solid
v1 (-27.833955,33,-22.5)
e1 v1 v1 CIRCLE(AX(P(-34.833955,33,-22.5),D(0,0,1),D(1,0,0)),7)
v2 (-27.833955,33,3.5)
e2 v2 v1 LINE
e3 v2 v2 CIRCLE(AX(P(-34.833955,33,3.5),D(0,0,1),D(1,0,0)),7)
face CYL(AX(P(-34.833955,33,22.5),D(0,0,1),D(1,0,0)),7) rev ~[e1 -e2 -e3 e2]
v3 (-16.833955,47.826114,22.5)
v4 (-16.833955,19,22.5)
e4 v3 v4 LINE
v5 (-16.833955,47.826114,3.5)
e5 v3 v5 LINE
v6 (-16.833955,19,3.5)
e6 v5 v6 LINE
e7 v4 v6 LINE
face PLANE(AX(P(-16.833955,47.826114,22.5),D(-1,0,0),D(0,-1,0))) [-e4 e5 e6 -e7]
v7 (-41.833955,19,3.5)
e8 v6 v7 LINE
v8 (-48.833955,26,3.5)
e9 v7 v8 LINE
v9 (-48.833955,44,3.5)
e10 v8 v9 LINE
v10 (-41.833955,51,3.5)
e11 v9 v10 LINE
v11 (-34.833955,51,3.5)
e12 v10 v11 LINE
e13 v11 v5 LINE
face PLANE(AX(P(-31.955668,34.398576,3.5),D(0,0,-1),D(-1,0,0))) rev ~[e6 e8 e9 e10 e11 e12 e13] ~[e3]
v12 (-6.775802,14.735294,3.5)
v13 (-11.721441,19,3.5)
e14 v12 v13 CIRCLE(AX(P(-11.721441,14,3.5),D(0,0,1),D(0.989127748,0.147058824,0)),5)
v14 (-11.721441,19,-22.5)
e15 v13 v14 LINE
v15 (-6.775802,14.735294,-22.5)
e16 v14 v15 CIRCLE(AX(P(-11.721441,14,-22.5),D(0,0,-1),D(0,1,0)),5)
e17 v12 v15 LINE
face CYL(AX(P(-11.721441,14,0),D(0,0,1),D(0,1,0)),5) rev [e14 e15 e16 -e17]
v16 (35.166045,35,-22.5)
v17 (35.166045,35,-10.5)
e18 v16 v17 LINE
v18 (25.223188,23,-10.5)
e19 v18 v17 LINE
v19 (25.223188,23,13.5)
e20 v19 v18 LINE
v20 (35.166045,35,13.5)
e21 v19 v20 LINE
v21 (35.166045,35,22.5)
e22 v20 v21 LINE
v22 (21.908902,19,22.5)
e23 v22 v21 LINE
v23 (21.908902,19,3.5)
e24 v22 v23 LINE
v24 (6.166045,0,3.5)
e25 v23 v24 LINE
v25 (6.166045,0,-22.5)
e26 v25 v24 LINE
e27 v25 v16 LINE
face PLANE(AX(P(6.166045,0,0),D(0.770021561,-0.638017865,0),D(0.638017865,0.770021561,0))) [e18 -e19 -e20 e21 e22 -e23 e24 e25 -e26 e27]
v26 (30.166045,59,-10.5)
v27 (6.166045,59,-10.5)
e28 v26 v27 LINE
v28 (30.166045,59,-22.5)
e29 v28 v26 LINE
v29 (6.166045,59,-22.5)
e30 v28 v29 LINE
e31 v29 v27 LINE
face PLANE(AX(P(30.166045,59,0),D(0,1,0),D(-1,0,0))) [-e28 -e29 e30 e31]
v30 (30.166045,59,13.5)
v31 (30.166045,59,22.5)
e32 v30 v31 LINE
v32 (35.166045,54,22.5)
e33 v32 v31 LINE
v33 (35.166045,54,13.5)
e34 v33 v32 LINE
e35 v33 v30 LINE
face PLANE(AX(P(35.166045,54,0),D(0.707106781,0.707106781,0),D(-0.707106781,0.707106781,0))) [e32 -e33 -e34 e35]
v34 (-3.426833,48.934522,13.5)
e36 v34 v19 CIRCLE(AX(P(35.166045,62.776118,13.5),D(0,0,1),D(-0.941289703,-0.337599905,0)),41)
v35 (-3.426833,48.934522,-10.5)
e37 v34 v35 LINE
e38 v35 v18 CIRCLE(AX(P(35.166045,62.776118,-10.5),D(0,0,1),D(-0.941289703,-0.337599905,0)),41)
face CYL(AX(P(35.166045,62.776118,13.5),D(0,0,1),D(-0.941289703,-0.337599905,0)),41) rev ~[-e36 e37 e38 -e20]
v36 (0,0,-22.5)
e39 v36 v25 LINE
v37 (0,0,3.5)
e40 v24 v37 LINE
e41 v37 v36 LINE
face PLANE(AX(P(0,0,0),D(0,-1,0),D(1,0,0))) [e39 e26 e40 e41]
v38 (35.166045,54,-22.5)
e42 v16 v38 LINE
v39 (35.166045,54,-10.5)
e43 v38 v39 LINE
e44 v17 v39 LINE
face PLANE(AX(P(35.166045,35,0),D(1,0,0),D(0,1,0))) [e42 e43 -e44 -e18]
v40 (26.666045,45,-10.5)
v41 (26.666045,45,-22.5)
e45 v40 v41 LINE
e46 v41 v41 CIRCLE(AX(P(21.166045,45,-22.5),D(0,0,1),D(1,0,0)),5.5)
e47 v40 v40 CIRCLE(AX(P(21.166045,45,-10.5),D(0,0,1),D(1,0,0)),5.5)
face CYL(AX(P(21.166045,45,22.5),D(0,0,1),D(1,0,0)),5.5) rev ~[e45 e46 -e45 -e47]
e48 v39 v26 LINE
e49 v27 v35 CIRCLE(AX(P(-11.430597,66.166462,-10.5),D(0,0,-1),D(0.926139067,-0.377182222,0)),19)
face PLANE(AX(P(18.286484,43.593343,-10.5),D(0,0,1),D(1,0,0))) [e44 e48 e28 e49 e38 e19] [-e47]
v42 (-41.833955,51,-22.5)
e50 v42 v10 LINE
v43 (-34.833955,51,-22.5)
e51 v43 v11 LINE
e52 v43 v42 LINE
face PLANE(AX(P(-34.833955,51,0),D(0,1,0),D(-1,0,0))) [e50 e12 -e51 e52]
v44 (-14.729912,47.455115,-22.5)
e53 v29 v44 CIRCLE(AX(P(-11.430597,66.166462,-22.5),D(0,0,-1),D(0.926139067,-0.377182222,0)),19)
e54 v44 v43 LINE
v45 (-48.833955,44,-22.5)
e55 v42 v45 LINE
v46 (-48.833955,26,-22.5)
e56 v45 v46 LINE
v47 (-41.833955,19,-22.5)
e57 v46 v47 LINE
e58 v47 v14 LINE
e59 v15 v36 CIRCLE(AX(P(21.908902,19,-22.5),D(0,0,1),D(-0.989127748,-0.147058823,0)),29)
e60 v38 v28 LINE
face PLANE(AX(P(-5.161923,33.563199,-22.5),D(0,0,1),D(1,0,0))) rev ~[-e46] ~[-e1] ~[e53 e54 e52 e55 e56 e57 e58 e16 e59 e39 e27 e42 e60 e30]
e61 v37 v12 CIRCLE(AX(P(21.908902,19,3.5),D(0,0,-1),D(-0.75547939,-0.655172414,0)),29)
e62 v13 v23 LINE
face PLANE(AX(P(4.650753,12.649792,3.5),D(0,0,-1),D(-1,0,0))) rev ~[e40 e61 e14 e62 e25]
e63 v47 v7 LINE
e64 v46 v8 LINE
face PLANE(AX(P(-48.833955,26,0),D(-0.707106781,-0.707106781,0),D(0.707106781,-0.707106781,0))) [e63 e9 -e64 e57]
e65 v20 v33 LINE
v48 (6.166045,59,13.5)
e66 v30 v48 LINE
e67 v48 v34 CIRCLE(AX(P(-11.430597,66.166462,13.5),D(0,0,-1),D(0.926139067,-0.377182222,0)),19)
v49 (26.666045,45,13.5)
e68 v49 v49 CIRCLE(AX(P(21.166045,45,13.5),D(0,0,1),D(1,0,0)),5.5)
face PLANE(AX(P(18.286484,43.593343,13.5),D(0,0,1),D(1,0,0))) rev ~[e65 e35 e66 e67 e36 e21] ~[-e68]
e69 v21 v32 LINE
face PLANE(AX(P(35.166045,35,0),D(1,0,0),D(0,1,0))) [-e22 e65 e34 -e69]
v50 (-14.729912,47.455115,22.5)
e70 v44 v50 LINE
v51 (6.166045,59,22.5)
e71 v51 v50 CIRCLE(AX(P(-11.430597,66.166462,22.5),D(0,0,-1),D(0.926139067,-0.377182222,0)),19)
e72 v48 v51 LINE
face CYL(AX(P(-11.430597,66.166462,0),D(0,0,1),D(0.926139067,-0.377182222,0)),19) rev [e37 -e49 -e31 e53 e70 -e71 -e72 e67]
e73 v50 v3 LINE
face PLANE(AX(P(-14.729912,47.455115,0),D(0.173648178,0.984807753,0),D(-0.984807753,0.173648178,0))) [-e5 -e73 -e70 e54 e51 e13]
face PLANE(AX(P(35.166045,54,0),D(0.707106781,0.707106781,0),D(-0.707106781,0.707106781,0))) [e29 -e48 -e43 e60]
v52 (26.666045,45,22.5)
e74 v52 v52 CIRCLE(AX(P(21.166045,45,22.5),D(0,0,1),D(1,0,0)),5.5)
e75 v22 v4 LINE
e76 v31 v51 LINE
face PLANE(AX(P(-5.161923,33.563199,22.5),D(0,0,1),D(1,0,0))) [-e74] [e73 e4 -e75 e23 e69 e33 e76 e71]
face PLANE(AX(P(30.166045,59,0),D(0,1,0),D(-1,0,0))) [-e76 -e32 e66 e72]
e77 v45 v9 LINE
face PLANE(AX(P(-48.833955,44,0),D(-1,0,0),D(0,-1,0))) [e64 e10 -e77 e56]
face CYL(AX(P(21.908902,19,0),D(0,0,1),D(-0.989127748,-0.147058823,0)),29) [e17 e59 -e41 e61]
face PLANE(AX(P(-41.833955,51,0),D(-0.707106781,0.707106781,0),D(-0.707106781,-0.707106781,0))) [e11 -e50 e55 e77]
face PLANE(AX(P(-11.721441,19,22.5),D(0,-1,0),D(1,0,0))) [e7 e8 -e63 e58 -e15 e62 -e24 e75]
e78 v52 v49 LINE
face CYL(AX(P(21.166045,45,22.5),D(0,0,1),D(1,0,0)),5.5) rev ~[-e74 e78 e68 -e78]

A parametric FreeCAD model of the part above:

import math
import FreeCAD as App
import Part
import Sketcher

V = App.Vector
Q = App.Units.Quantity

doc = App.newDocument("Part")
body = doc.addObject("PartDesign::Body", "Body")

sketch1 = doc.addObject("Sketcher::SketchObject", "Sketch")
body.addObject(sketch1)
sketch1.AttachmentSupport = (doc.XY_Plane, [""])
sketch1.MapMode = "FlatFace"
sketch1.addGeometry([
    Part.LineSegment(V(0, 0, 0), V(6.166045, 0, 0)),
    Part.LineSegment(V(6.166045, 0, 0), V(35.166045, 35, 0)),
    Part.LineSegment(V(35.166045, 35, 0), V(35.166045, 54, 0)),
    Part.LineSegment(V(35.166045, 54, 0), V(30.166045, 59, 0)),
    Part.LineSegment(V(30.166045, 59, 0), V(6.166045, 59, 0)),
    Part.ArcOfCircle(Part.Circle(V(-11.430597, 66.166462, 0), V(0, 0, 1), 19), math.radians(-100), math.radians(-22.159252)),
    Part.LineSegment(V(-14.729912, 47.455115, 0), V(-34.833955, 51, 0)),
    Part.LineSegment(V(-34.833955, 51, 0), V(-41.833955, 51, 0)),
    Part.LineSegment(V(-41.833955, 51, 0), V(-48.833955, 44, 0)),
    Part.LineSegment(V(-48.833955, 44, 0), V(-48.833955, 26, 0)),
    Part.LineSegment(V(-48.833955, 26, 0), V(-41.833955, 19, 0)),
    Part.LineSegment(V(-41.833955, 19, 0), V(-11.721441, 19, 0)),
    Part.ArcOfCircle(Part.Circle(V(-11.721441, 14, 0), V(0, 0, 1), 5), math.radians(8.456519), math.radians(90)),
    Part.ArcOfCircle(Part.Circle(V(21.908902, 19, 0), V(0, 0, 1), 29), math.radians(-171.543481), math.radians(-139.067275)),
], False)
sketch1.addConstraint([
    Sketcher.Constraint("Coincident", 0, 2, 1, 1),
    Sketcher.Constraint("Coincident", 1, 2, 2, 1),
    Sketcher.Constraint("Coincident", 2, 2, 3, 1),
    Sketcher.Constraint("Coincident", 3, 2, 4, 1),
    Sketcher.Constraint("Coincident", 4, 2, 5, 2),
    Sketcher.Constraint("Tangent", 5, 1, 6, 1),
    Sketcher.Constraint("Coincident", 6, 2, 7, 1),
    Sketcher.Constraint("Coincident", 7, 2, 8, 1),
    Sketcher.Constraint("Coincident", 8, 2, 9, 1),
    Sketcher.Constraint("Coincident", 9, 2, 10, 1),
    Sketcher.Constraint("Coincident", 10, 2, 11, 1),
    Sketcher.Constraint("Tangent", 11, 2, 12, 2),
    Sketcher.Constraint("Tangent", 12, 1, 13, 1),
    Sketcher.Constraint("Coincident", 13, 2, 0, 1),
    Sketcher.Constraint("Horizontal", 0),
    Sketcher.Constraint("Vertical", 2),
    Sketcher.Constraint("Horizontal", 4),
    Sketcher.Constraint("Horizontal", 7),
    Sketcher.Constraint("Vertical", 9),
    Sketcher.Constraint("Horizontal", 11),
    Sketcher.Constraint("Coincident", 13, 2, -1, 1),
    Sketcher.Constraint("Perpendicular", 3, 8),
    Sketcher.Constraint("Perpendicular", 8, 10),
    Sketcher.Constraint("Horizontal", 13, 3, 10, 2),
    Sketcher.Constraint("Vertical", 0, 2, 4, 2),
    Sketcher.Constraint("Vertical", 7, 2, 10, 2),
    Sketcher.Constraint("Equal", 8, 10),
    Sketcher.Constraint("Radius", 5, Q("19 mm")),
    Sketcher.Constraint("Radius", 12, Q("5 mm")),
    Sketcher.Constraint("Radius", 13, Q("29 mm")),
    Sketcher.Constraint("DistanceX", 4, 2, 4, 1, Q("24 mm")),
    Sketcher.Constraint("DistanceX", 7, 2, 7, 1, Q("7 mm")),
    Sketcher.Constraint("DistanceY", 2, 1, 2, 2, Q("19 mm")),
    Sketcher.Constraint("DistanceY", 9, 2, 9, 1, Q("18 mm")),
    Sketcher.Constraint("Angle", 6, Q("170 deg")),
    Sketcher.Constraint("DistanceY", -1, 1, 12, 3, Q("14 mm")),
    Sketcher.Constraint("DistanceY", -1, 1, 1, 2, Q("35 mm")),
    Sketcher.Constraint("DistanceY", -1, 1, 3, 2, Q("59 mm")),
    Sketcher.Constraint("DistanceY", -1, 1, 6, 2, Q("51 mm")),
    Sketcher.Constraint("DistanceX", 6, 2, 4, 2, Q("41 mm")),
    Sketcher.Constraint("DistanceX", 5, 3, 13, 3, Q("33.339499 mm")),
])
pad1 = doc.addObject("PartDesign::Pad", "Pad")
body.addObject(pad1)
pad1.Profile = sketch1
pad1.Length = 45
pad1.Midplane = True

sketch2 = doc.addObject("Sketcher::SketchObject", "Sketch001")
body.addObject(sketch2)
sketch2.AttachmentSupport = (doc.XY_Plane, [""])
sketch2.MapMode = "FlatFace"
sketch2.AttachmentOffset = App.Placement(V(0, 0, 22.5), App.Rotation())
sketch2.addGeometry(Part.Circle(V(-34.833955, 33, 0), V(0, 0, 1), 7), False)
sketch2.addConstraint([
    Sketcher.Constraint("Diameter", 0, Q("14 mm")),
    Sketcher.Constraint("DistanceY", -1, 1, 0, 3, Q("33 mm")),
    Sketcher.Constraint("DistanceX", 0, 3, -1, 1, Q("34.833955 mm")),
])
pocket1 = doc.addObject("PartDesign::Pocket", "Pocket")
body.addObject(pocket1)
pocket1.Profile = sketch2
pocket1.Type = "ThroughAll"

sketch3 = doc.addObject("Sketcher::SketchObject", "Sketch002")
body.addObject(sketch3)
sketch3.AttachmentSupport = (doc.XY_Plane, [""])
sketch3.MapMode = "FlatFace"
sketch3.AttachmentOffset = App.Placement(V(0, 0, 22.5), App.Rotation())
sketch3.addGeometry([
    Part.LineSegment(V(-16.833955, 19, 0), V(-16.833955, 47.826114, 0)),
    Part.LineSegment(V(-16.833955, 47.826114, 0), V(-34.833955, 51, 0)),
    Part.LineSegment(V(-34.833955, 51, 0), V(-41.833955, 51, 0)),
    Part.LineSegment(V(-41.833955, 51, 0), V(-48.833955, 44, 0)),
    Part.LineSegment(V(-48.833955, 44, 0), V(-48.833955, 26, 0)),
    Part.LineSegment(V(-48.833955, 26, 0), V(-41.833955, 19, 0)),
    Part.LineSegment(V(-41.833955, 19, 0), V(-16.833955, 19, 0)),
    Part.LineSegment(V(21.908902, 19, 0), V(-11.721441, 19, 0)),
    Part.ArcOfCircle(Part.Circle(V(-11.721441, 14, 0), V(0, 0, 1), 5), math.radians(8.456519), math.radians(90)),
    Part.ArcOfCircle(Part.Circle(V(21.908902, 19, 0), V(0, 0, 1), 29), math.radians(-171.543481), math.radians(-139.067275)),
    Part.LineSegment(V(0, 0, 0), V(6.166045, 0, 0)),
    Part.LineSegment(V(6.166045, 0, 0), V(21.908902, 19, 0)),
], False)
sketch3.addConstraint([
    Sketcher.Constraint("Coincident", 0, 2, 1, 1),
    Sketcher.Constraint("Coincident", 1, 2, 2, 1),
    Sketcher.Constraint("Coincident", 2, 2, 3, 1),
    Sketcher.Constraint("Coincident", 3, 2, 4, 1),
    Sketcher.Constraint("Coincident", 4, 2, 5, 1),
    Sketcher.Constraint("Coincident", 5, 2, 6, 1),
    Sketcher.Constraint("Coincident", 6, 2, 0, 1),
    Sketcher.Constraint("Tangent", 7, 2, 8, 2),
    Sketcher.Constraint("Tangent", 8, 1, 9, 1),
    Sketcher.Constraint("Coincident", 9, 2, 10, 1),
    Sketcher.Constraint("Coincident", 10, 2, 11, 1),
    Sketcher.Constraint("Coincident", 11, 2, 7, 1),
    Sketcher.Constraint("Vertical", 0),
    Sketcher.Constraint("Horizontal", 2),
    Sketcher.Constraint("Vertical", 4),
    Sketcher.Constraint("Horizontal", 6),
    Sketcher.Constraint("Horizontal", 7),
    Sketcher.Constraint("Horizontal", 10),
    Sketcher.Constraint("Coincident", 9, 2, -1, 1),
    Sketcher.Constraint("Coincident", 11, 2, 9, 3),
    Sketcher.Constraint("Perpendicular", 3, 5),
    Sketcher.Constraint("Horizontal", 9, 3, 5, 2),
    Sketcher.Constraint("Vertical", 2, 2, 5, 2),
    Sketcher.Constraint("Equal", 3, 5),
    Sketcher.Constraint("Radius", 8, Q("5 mm")),
    Sketcher.Constraint("Radius", 9, Q("29 mm")),
    Sketcher.Constraint("DistanceX", 2, 2, 2, 1, Q("7 mm")),
    Sketcher.Constraint("DistanceX", 6, 1, 6, 2, Q("25 mm")),
    Sketcher.Constraint("DistanceY", 4, 2, 4, 1, Q("18 mm")),
    Sketcher.Constraint("Angle", 1, Q("170 deg")),
    Sketcher.Constraint("DistanceY", -1, 1, 8, 3, Q("14 mm")),
    Sketcher.Constraint("DistanceY", -1, 1, 1, 2, Q("51 mm")),
    Sketcher.Constraint("DistanceX", 10, 1, 10, 2, Q("6.166045 mm")),
    Sketcher.Constraint("DistanceX", 0, 2, -1, 1, Q("16.833955 mm")),
])
pocket2 = doc.addObject("PartDesign::Pocket", "Pocket001")
body.addObject(pocket2)
pocket2.Profile = sketch3
pocket2.Length = 19

sketch4 = doc.addObject("Sketcher::SketchObject", "Sketch003")
body.addObject(sketch4)
sketch4.AttachmentSupport = (doc.XY_Plane, [""])
sketch4.MapMode = "FlatFace"
sketch4.AttachmentOffset = App.Placement(V(0, 0, 13.5), App.Rotation())
sketch4.addGeometry([
    Part.LineSegment(V(25.223188, 23, 0), V(35.166045, 35, 0)),
    Part.LineSegment(V(35.166045, 35, 0), V(35.166045, 54, 0)),
    Part.LineSegment(V(35.166045, 54, 0), V(30.166045, 59, 0)),
    Part.LineSegment(V(30.166045, 59, 0), V(6.166045, 59, 0)),
    Part.ArcOfCircle(Part.Circle(V(-11.430597, 66.166462, 0), V(0, 0, 1), 19), math.radians(-65.086422), math.radians(-22.159252)),
    Part.ArcOfCircle(Part.Circle(V(35.166045, 62.776118, 0), V(0, 0, 1), 41), math.radians(-160.269285), math.radians(-104.034654)),
], False)
sketch4.addConstraint([
    Sketcher.Constraint("Coincident", 0, 2, 1, 1),
    Sketcher.Constraint("Coincident", 1, 2, 2, 1),
    Sketcher.Constraint("Coincident", 2, 2, 3, 1),
    Sketcher.Constraint("Coincident", 3, 2, 4, 2),
    Sketcher.Constraint("Coincident", 4, 1, 5, 1),
    Sketcher.Constraint("Coincident", 5, 2, 0, 1),
    Sketcher.Constraint("Vertical", 1),
    Sketcher.Constraint("Horizontal", 3),
    Sketcher.Constraint("Vertical", 5, 3, 0, 2),
    Sketcher.Constraint("Radius", 4, Q("19 mm")),
    Sketcher.Constraint("Radius", 5, Q("41 mm")),
    Sketcher.Constraint("DistanceX", 3, 2, 3, 1, Q("24 mm")),
    Sketcher.Constraint("DistanceY", 1, 1, 1, 2, Q("19 mm")),
    Sketcher.Constraint("Angle", 2, Q("135 deg")),
    Sketcher.Constraint("DistanceY", -1, 1, 0, 2, Q("35 mm")),
    Sketcher.Constraint("DistanceY", -1, 1, 2, 2, Q("59 mm")),
    Sketcher.Constraint("DistanceY", -1, 1, 5, 2, Q("23 mm")),
    Sketcher.Constraint("Distance", 0, Q("15.583979 mm")),
    Sketcher.Constraint("DistanceX", -1, 1, 5, 2, Q("25.223188 mm")),
    Sketcher.Constraint("DistanceY", 4, 1, 4, 3, Q("17.23194 mm")),
])
pocket3 = doc.addObject("PartDesign::Pocket", "Pocket002")
body.addObject(pocket3)
pocket3.Profile = sketch4
pocket3.Length = 24

sketch5 = doc.addObject("Sketcher::SketchObject", "Sketch004")
body.addObject(sketch5)
sketch5.AttachmentSupport = (doc.XY_Plane, [""])
sketch5.MapMode = "FlatFace"
sketch5.AttachmentOffset = App.Placement(V(0, 0, 22.5), App.Rotation())
sketch5.addGeometry(Part.Circle(V(21.166045, 45, 0), V(0, 0, 1), 5.5), False)
sketch5.addConstraint([
    Sketcher.Constraint("Diameter", 0, Q("11 mm")),
    Sketcher.Constraint("DistanceY", -1, 1, 0, 3, Q("45 mm")),
    Sketcher.Constraint("DistanceX", -1, 1, 0, 3, Q("21.166045 mm")),
])
pocket4 = doc.addObject("PartDesign::Pocket", "Pocket003")
body.addObject(pocket4)
pocket4.Profile = sketch5
pocket4.Type = "ThroughAll"

doc.recompute()
